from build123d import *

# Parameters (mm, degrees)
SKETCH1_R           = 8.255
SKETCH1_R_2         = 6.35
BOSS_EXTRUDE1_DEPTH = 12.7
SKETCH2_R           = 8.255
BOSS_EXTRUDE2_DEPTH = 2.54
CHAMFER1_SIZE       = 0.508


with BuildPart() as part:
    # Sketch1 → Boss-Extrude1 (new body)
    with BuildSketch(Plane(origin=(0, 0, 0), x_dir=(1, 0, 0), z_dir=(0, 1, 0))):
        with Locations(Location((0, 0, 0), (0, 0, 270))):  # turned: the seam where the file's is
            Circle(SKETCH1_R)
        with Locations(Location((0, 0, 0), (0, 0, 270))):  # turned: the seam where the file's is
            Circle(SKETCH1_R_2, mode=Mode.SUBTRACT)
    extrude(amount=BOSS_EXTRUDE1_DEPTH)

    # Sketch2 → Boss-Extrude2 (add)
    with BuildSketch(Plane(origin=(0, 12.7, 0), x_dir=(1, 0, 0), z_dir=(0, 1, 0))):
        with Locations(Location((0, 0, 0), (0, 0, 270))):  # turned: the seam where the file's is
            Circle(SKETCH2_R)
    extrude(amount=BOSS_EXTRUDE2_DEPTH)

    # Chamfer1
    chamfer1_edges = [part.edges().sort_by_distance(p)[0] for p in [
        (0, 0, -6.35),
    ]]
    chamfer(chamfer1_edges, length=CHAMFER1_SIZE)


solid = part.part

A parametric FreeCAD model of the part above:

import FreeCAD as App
import Part
import Sketcher
from FreeCAD import Vector
Q = App.Units.Quantity


def edges_at(feature, points):
    """Names of the edges that pass closest to the given points."""
    edges = feature.Shape.Edges
    near = lambda p: min(range(len(edges)), key=lambda i: edges[i].distToShape(Part.Vertex(*p))[0])
    return sorted({f"Edge{near(p) + 1}" for p in points})

doc = App.newDocument("Part")
body = doc.addObject("PartDesign::Body", "Body")

# Sketch on XZ plane
sketch1 = doc.addObject("Sketcher::SketchObject", "Sketch")
body.addObject(sketch1)
sketch1.AttachmentSupport = (doc.XZ_Plane, [""])
sketch1.MapMode = "FlatFace"
sketch1.addGeometry([
    Part.Circle(Vector(0, 0, 0), Vector(0, 0, 1), 8),
    Part.Circle(Vector(0, 0, 0), Vector(0, 0, 1), 6),
], False)
sketch1.addConstraint([
    Sketcher.Constraint("Coincident", 0, 3, -1, 1),
    Sketcher.Constraint("Coincident", 1, 3, -1, 1),
    Sketcher.Constraint("Diameter", 1, Q("0.5 in")),
    Sketcher.Constraint("Diameter", 0, Q("0.65 in")),
])
pad1 = doc.addObject("PartDesign::Pad", "Pad")
body.addObject(pad1)
pad1.Profile = sketch1
pad1.Length = Q("0.5 in")
pad1.Reversed = True

# Sketch on XZ plane
sketch2 = doc.addObject("Sketcher::SketchObject", "Sketch001")
body.addObject(sketch2)
sketch2.AttachmentSupport = (doc.XZ_Plane, [""])
sketch2.MapMode = "FlatFace"
sketch2.AttachmentOffset = App.Placement(Vector(0, 0, -0.5 * 25.4), App.Rotation())
sketch2.addGeometry(Part.Circle(Vector(0, 0, 0), Vector(0, 0, 1), 8), False)
sketch2.addConstraint([
    Sketcher.Constraint("Coincident", 0, 3, -1, 1),
    Sketcher.Constraint("Diameter", 0, Q("0.65 in")),
])
pad2 = doc.addObject("PartDesign::Pad", "Pad001")
body.addObject(pad2)
pad2.Profile = sketch2
pad2.Length = Q("0.1 in")
pad2.Reversed = True
doc.recompute()

chamfer = doc.addObject("PartDesign::Chamfer", "Chamfer")
body.addObject(chamfer)
chamfer.Base = (pad2, edges_at(pad2, [(0, 0, -6.35)]))
chamfer.Size = Q("0.02 in")

doc.recompute()
